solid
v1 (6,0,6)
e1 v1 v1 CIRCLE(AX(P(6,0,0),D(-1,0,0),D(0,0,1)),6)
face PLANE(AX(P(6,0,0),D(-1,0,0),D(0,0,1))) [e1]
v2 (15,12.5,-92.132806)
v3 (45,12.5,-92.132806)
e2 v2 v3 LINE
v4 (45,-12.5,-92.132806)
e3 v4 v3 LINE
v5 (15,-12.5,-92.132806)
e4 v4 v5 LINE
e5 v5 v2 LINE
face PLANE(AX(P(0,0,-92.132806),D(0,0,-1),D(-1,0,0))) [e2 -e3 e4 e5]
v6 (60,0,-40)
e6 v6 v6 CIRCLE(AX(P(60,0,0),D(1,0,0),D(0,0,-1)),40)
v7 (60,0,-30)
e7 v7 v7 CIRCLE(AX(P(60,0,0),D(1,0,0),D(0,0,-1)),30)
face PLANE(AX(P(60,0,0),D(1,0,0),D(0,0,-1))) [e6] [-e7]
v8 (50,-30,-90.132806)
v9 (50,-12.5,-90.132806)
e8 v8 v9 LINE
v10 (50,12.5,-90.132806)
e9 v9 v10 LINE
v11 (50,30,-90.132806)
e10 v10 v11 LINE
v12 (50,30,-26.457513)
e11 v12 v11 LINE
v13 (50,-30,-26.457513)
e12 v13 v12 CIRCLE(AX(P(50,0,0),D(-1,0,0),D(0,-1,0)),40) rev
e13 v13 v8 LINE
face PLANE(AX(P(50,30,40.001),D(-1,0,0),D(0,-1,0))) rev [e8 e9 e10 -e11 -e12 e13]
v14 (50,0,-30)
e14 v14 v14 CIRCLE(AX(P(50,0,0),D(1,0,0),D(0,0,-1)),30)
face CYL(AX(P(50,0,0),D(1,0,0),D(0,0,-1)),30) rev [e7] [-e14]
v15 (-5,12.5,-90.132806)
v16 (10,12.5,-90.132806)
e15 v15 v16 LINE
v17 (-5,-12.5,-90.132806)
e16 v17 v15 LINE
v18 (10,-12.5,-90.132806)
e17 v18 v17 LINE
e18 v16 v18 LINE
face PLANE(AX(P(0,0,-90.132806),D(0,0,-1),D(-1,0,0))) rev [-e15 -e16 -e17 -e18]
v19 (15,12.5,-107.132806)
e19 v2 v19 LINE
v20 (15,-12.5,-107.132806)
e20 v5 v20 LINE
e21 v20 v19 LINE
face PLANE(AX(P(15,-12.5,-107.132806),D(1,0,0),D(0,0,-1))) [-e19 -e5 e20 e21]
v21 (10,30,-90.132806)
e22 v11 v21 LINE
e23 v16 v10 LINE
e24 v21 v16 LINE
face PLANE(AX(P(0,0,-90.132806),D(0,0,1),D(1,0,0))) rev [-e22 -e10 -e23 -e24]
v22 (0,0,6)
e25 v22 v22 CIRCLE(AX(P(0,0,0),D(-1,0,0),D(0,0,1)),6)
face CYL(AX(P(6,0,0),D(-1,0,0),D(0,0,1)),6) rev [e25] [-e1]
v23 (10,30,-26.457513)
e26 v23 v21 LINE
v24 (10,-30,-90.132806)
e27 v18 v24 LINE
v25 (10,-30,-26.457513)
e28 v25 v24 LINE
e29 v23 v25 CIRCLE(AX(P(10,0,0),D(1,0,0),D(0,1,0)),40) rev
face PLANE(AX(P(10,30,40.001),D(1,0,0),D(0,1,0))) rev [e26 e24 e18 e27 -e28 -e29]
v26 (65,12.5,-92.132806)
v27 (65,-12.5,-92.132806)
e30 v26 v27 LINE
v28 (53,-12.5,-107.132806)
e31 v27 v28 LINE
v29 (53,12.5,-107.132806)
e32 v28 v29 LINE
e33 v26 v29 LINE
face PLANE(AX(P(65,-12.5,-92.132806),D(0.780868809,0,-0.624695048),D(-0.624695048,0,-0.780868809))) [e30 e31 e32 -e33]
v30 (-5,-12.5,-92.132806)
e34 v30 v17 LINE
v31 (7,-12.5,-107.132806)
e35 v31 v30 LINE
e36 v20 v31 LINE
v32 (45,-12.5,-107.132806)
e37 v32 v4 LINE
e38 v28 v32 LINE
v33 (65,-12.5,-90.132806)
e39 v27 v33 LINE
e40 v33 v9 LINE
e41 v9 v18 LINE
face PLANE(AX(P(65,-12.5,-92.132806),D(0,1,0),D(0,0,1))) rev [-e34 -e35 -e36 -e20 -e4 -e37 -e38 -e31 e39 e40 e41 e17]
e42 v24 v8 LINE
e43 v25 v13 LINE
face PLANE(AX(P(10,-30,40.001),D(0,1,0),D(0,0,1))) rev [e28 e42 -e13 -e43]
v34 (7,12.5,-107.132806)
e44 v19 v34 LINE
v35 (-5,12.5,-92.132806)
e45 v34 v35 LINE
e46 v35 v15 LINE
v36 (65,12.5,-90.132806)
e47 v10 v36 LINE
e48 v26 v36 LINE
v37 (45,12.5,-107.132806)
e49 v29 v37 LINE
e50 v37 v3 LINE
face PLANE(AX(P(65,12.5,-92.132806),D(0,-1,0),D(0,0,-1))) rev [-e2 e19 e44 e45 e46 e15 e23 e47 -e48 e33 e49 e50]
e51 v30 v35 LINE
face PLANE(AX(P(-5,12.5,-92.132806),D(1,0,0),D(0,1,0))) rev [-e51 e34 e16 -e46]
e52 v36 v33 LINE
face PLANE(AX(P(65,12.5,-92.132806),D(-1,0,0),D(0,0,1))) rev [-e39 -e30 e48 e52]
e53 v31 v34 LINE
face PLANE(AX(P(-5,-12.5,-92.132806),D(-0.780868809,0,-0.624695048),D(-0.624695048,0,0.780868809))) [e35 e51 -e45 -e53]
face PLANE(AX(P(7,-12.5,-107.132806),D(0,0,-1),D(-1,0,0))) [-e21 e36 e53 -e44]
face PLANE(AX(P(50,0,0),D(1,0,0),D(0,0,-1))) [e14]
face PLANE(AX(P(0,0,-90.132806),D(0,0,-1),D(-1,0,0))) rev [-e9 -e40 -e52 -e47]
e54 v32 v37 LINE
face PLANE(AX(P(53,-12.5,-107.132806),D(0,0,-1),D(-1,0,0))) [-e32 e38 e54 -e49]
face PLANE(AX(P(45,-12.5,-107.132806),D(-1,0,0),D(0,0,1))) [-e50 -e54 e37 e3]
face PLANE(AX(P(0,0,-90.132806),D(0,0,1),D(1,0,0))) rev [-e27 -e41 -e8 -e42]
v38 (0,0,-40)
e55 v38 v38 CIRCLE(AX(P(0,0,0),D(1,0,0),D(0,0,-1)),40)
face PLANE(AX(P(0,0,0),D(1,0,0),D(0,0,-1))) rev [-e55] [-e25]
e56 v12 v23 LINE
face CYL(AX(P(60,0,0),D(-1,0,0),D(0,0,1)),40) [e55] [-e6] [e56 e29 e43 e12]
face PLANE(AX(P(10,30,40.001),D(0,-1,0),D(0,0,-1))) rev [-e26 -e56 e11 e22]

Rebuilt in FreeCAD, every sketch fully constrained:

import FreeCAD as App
import Part
import Sketcher

doc = App.newDocument("Part")
body = doc.addObject("PartDesign::Body", "Body")

# Sketch on YZ plane
sketch1 = body.newObject("Sketcher::SketchObject", "Sketch")
sketch1.AttachmentSupport = (doc.getObject("YZ_Plane"), [""])
sketch1.MapMode = "FlatFace"
sketch1.addGeometry(Part.Circle(App.Vector(0, 0, 0), App.Vector(0, 0, 1), 40), False)
sketch1.addConstraint(Sketcher.Constraint("Coincident", 0, 3, -1, 1))
sketch1.addConstraint(Sketcher.Constraint("Diameter", 0, 80.0))
pad1 = body.newObject("PartDesign::Pad", "Pad")
pad1.Profile = sketch1
pad1.Length = 60

# Sketch on XY plane
sketch2 = body.newObject("Sketcher::SketchObject", "Sketch001")
sketch2.AttachmentSupport = (doc.getObject("XY_Plane"), [""])
sketch2.MapMode = "FlatFace"
sketch2.AttachmentOffset = App.Placement(App.Vector(0, 0, -90.132806), App.Rotation())
sketch2.addGeometry(Part.LineSegment(App.Vector(10, 30, 0), App.Vector(10, -30, 0)), False)
sketch2.addGeometry(Part.LineSegment(App.Vector(10, -30, 0), App.Vector(50, -30, 0)), False)
sketch2.addGeometry(Part.LineSegment(App.Vector(50, -30, 0), App.Vector(50, 30, 0)), False)
sketch2.addGeometry(Part.LineSegment(App.Vector(50, 30, 0), App.Vector(10, 30, 0)), False)
sketch2.addConstraint(Sketcher.Constraint("Coincident", 0, 2, 1, 1))
sketch2.addConstraint(Sketcher.Constraint("Coincident", 1, 2, 2, 1))
sketch2.addConstraint(Sketcher.Constraint("Coincident", 2, 2, 3, 1))
sketch2.addConstraint(Sketcher.Constraint("Coincident", 3, 2, 0, 1))
sketch2.addConstraint(Sketcher.Constraint("Vertical", 0))
sketch2.addConstraint(Sketcher.Constraint("Horizontal", 1))
sketch2.addConstraint(Sketcher.Constraint("Vertical", 2))
sketch2.addConstraint(Sketcher.Constraint("Horizontal", 3))
sketch2.addConstraint(Sketcher.Constraint("DistanceX", 1, 1, 1, 2, 40.0))
sketch2.addConstraint(Sketcher.Constraint("DistanceY", 0, 2, 0, 1, 60.0))
sketch2.addConstraint(Sketcher.Constraint("DistanceX", -1, 1, 0, 2, 10.0))
sketch2.addConstraint(Sketcher.Constraint("DistanceY", 0, 2, -1, 1, 30.0))
pad2 = body.newObject("PartDesign::Pad", "Pad001")
pad2.Profile = sketch2
pad2.Type = "UpToFirst"

# Sketch on XY plane
sketch3 = body.newObject("Sketcher::SketchObject", "Sketch002")
sketch3.AttachmentSupport = (doc.getObject("XY_Plane"), [""])
sketch3.MapMode = "FlatFace"
sketch3.AttachmentOffset = App.Placement(App.Vector(0, 0, -90.132806), App.Rotation())
sketch3.addGeometry(Part.LineSegment(App.Vector(65, 12, 0), App.Vector(65, -12, 0)), False)
sketch3.addGeometry(Part.LineSegment(App.Vector(65, -12, 0), App.Vector(-5, -12, 0)), False)
sketch3.addGeometry(Part.LineSegment(App.Vector(-5, -12, 0), App.Vector(-5, 12, 0)), False)
sketch3.addGeometry(Part.LineSegment(App.Vector(-5, 12, 0), App.Vector(65, 12, 0)), False)
sketch3.addConstraint(Sketcher.Constraint("Coincident", 0, 2, 1, 1))
sketch3.addConstraint(Sketcher.Constraint("Coincident", 1, 2, 2, 1))
sketch3.addConstraint(Sketcher.Constraint("Coincident", 2, 2, 3, 1))
sketch3.addConstraint(Sketcher.Constraint("Coincident", 3, 2, 0, 1))
sketch3.addConstraint(Sketcher.Constraint("Vertical", 0))
sketch3.addConstraint(Sketcher.Constraint("Horizontal", 1))
sketch3.addConstraint(Sketcher.Constraint("Vertical", 2))
sketch3.addConstraint(Sketcher.Constraint("Horizontal", 3))
sketch3.addConstraint(Sketcher.Constraint("DistanceX", 1, 2, 1, 1, 70.0))
sketch3.addConstraint(Sketcher.Constraint("DistanceY", 0, 2, 0, 1, 25.0))
sketch3.addConstraint(Sketcher.Constraint("DistanceX", -1, 1, 0, 2, 65.0))
sketch3.addConstraint(Sketcher.Constraint("DistanceY", 0, 2, -1, 1, 12.5))
pad3 = body.newObject("PartDesign::Pad", "Pad002")
pad3.Profile = sketch3
pad3.Length = 2
pad3.Reversed = True

# Sketch on XZ plane
sketch4 = body.newObject("Sketcher::SketchObject", "Sketch003")
sketch4.AttachmentSupport = (doc.getObject("XZ_Plane"), [""])
sketch4.MapMode = "FlatFace"
sketch4.AttachmentOffset = App.Placement(App.Vector(0, 0, -12.5), App.Rotation())
sketch4.addGeometry(Part.LineSegment(App.Vector(7, -107, 0), App.Vector(-5, -92, 0)), False)
sketch4.addGeometry(Part.LineSegment(App.Vector(-5, -92, 0), App.Vector(15, -92, 0)), False)
sketch4.addGeometry(Part.LineSegment(App.Vector(15, -92, 0), App.Vector(15, -107, 0)), False)
sketch4.addGeometry(Part.LineSegment(App.Vector(15, -107, 0), App.Vector(7, -107, 0)), False)
sketch4.addGeometry(Part.LineSegment(App.Vector(45, -107, 0), App.Vector(45, -92, 0)), False)
sketch4.addGeometry(Part.LineSegment(App.Vector(45, -92, 0), App.Vector(65, -92, 0)), False)
sketch4.addGeometry(Part.LineSegment(App.Vector(65, -92, 0), App.Vector(53, -107, 0)), False)
sketch4.addGeometry(Part.LineSegment(App.Vector(53, -107, 0), App.Vector(45, -107, 0)), False)
sketch4.addConstraint(Sketcher.Constraint("Coincident", 0, 2, 1, 1))
sketch4.addConstraint(Sketcher.Constraint("Coincident", 1, 2, 2, 1))
sketch4.addConstraint(Sketcher.Constraint("Coincident", 2, 2, 3, 1))
sketch4.addConstraint(Sketcher.Constraint("Coincident", 3, 2, 0, 1))
sketch4.addConstraint(Sketcher.Constraint("Coincident", 4, 2, 5, 1))
sketch4.addConstraint(Sketcher.Constraint("Coincident", 5, 2, 6, 1))
sketch4.addConstraint(Sketcher.Constraint("Coincident", 6, 2, 7, 1))
sketch4.addConstraint(Sketcher.Constraint("Coincident", 7, 2, 4, 1))
sketch4.addConstraint(Sketcher.Constraint("Horizontal", 1))
sketch4.addConstraint(Sketcher.Constraint("Vertical", 2))
sketch4.addConstraint(Sketcher.Constraint("Horizontal", 3))
sketch4.addConstraint(Sketcher.Constraint("Vertical", 4))
sketch4.addConstraint(Sketcher.Constraint("Horizontal", 5))
sketch4.addConstraint(Sketcher.Constraint("Horizontal", 7))
sketch4.addConstraint(Sketcher.Constraint("Horizontal", 1, 2, 4, 2))
sketch4.addConstraint(Sketcher.Constraint("Horizontal", 3, 2, 6, 2))
sketch4.addConstraint(Sketcher.Constraint("Equal", 1, 5))
sketch4.addConstraint(Sketcher.Constraint("Equal", 3, 7))
sketch4.addConstraint(Sketcher.Constraint("DistanceX", 1, 1, 1, 2, 20.0))
sketch4.addConstraint(Sketcher.Constraint("DistanceX", 3, 2, 3, 1, 8.0))
sketch4.addConstraint(Sketcher.Constraint("DistanceY", 2, 2, 2, 1, 15.0))
sketch4.addConstraint(Sketcher.Constraint("DistanceX", 0, 2, -1, 1, 5.0))
sketch4.addConstraint(Sketcher.Constraint("DistanceX", -1, 1, 4, 2, 45.0))
sketch4.addConstraint(Sketcher.Constraint("DistanceY", 0, 2, -1, 1, 92.132806))
pad4 = body.newObject("PartDesign::Pad", "Pad003")
pad4.Profile = sketch4
pad4.Length = 25

# Sketch on YZ plane
sketch5 = body.newObject("Sketcher::SketchObject", "Sketch004")
sketch5.AttachmentSupport = (doc.getObject("YZ_Plane"), [""])
sketch5.MapMode = "FlatFace"
sketch5.AttachmentOffset = App.Placement(App.Vector(0, 0, 60), App.Rotation())
sketch5.addGeometry(Part.Circle(App.Vector(0, 0, 0), App.Vector(0, 0, 1), 30), False)
sketch5.addConstraint(Sketcher.Constraint("Coincident", 0, 3, -1, 1))
sketch5.addConstraint(Sketcher.Constraint("Diameter", 0, 60.0))
pocket1 = body.newObject("PartDesign::Pocket", "Pocket")
pocket1.Profile = sketch5
pocket1.Length = 10

# Sketch on YZ plane
sketch6 = body.newObject("Sketcher::SketchObject", "Sketch005")
sketch6.AttachmentSupport = (doc.getObject("YZ_Plane"), [""])
sketch6.MapMode = "FlatFace"
sketch6.addGeometry(Part.Circle(App.Vector(0, 0, 0), App.Vector(0, 0, 1), 6), False)
sketch6.addConstraint(Sketcher.Constraint("Coincident", 0, 3, -1, 1))
sketch6.addConstraint(Sketcher.Constraint("Diameter", 0, 12.0))
pocket2 = body.newObject("PartDesign::Pocket", "Pocket001")
pocket2.Profile = sketch6
pocket2.Length = 6
pocket2.Reversed = True

doc.recompute()
